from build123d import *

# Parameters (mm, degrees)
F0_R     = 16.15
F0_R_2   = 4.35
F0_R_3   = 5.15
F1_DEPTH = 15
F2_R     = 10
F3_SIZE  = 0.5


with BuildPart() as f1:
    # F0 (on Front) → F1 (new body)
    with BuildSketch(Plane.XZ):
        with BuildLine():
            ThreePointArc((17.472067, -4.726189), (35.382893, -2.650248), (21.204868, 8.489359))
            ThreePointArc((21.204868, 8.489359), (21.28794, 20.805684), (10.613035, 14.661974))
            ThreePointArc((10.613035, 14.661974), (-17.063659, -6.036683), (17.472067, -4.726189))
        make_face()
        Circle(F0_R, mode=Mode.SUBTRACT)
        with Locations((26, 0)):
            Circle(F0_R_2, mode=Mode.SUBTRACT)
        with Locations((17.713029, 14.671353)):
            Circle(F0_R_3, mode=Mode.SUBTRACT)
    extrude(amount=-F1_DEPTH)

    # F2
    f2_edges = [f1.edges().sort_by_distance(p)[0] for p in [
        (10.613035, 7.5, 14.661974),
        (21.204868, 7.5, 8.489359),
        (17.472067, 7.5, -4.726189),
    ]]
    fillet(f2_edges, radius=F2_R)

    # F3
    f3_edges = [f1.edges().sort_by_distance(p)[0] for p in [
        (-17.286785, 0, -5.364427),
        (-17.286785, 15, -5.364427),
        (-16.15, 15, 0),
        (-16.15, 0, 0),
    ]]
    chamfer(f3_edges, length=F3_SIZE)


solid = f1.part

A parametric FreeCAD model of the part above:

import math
import FreeCAD as App
import Part
import Sketcher

V = App.Vector
Q = App.Units.Quantity


def edges_at(feature, points):
    """Names of the edges that pass closest to the given points."""
    edges = feature.Shape.Edges
    near = lambda p: min(range(len(edges)), key=lambda i: edges[i].distToShape(Part.Vertex(*p))[0])
    return sorted({f"Edge{near(p) + 1}" for p in points})

doc = App.newDocument("Part")
params = doc.addObject("Spreadsheet::Sheet", "Params")
for row, (alias, value) in enumerate([
    ("sketch1_diameter", "32.3 mm"),
    ("sketch1_diameter2", "8.7 mm"),
    ("sketch1_diameter3", "10.3 mm"),
    ("sketch1_radius", "7.1 mm"),
    ("sketch1_radius2", "18.1 mm"),
    ("pad1_length", "15 mm"),
    ("fillet_radius", "10 mm"),
    ("chamfer_size", "0.5 mm"),
], start=1):
    params.set(f"A{row}", alias)
    params.set(f"B{row}", "=" + value)
    params.setAlias(f"B{row}", alias)

body = doc.addObject("PartDesign::Body", "Body")

# Sketch on XZ plane
sketch1 = body.newObject("Sketcher::SketchObject", "Sketch")
sketch1.AttachmentSupport = (doc.getObject("XZ_Plane"), [""])
sketch1.MapMode = "FlatFace"
sketch1.addGeometry(Part.ArcOfCircle(Part.Circle(V(26, 0, 0), V(0, 0, 1), 9.8), math.radians(-151), math.radians(119)), False)
sketch1.addGeometry(Part.ArcOfCircle(Part.Circle(V(17.7, 14.7, 0), V(0, 0, 1), 7.1), math.radians(-61), math.radians(180)), False)
sketch1.addGeometry(Part.ArcOfCircle(Part.Circle(V(0, 0, 0), V(0, 0, 1), 18.1), math.radians(54), math.radians(345)), False)
sketch1.addGeometry(Part.Circle(V(0, 0, 0), V(0, 0, 1), 16.1), False)
sketch1.addGeometry(Part.Circle(V(26, 0, 0), V(0, 0, 1), 4.3), False)
sketch1.addGeometry(Part.Circle(V(17.7, 14.7, 0), V(0, 0, 1), 5.2), False)
sketch1.addConstraint(Sketcher.Constraint("Tangent", 0, 2, 1, 1))
sketch1.addConstraint(Sketcher.Constraint("Coincident", 1, 2, 2, 1))
sketch1.addConstraint(Sketcher.Constraint("Coincident", 2, 2, 0, 1))
sketch1.addConstraint(Sketcher.Constraint("Coincident", 2, 3, -1, 1))
sketch1.addConstraint(Sketcher.Constraint("Coincident", 3, 3, -1, 1))
sketch1.addConstraint(Sketcher.Constraint("Coincident", 4, 3, 0, 3))
sketch1.addConstraint(Sketcher.Constraint("Coincident", 5, 3, 1, 3))
sketch1.addConstraint(Sketcher.Constraint("PointOnObject", 0, 3, -1))
sketch1.addConstraint(Sketcher.Constraint("Diameter", 3, Q("32.3 mm")))
sketch1.addConstraint(Sketcher.Constraint("Diameter", 4, Q("8.7 mm")))
sketch1.addConstraint(Sketcher.Constraint("Diameter", 5, Q("10.3 mm")))
sketch1.addConstraint(Sketcher.Constraint("Radius", 1, Q("7.1 mm")))
sketch1.addConstraint(Sketcher.Constraint("Radius", 2, Q("18.1 mm")))
sketch1.addConstraint(Sketcher.Constraint("Radius", 0, Q("9.75 mm")))
sketch1.addConstraint(Sketcher.Constraint("DistanceX", -1, 1, 0, 3, Q("26 mm")))
sketch1.addConstraint(Sketcher.Constraint("DistanceX", 2, 2, 0, 2, Q("3.732801 mm")))
sketch1.setExpression("Constraints[8]", "Params.sketch1_diameter")
sketch1.setExpression("Constraints[9]", "Params.sketch1_diameter2")
sketch1.setExpression("Constraints[10]", "Params.sketch1_diameter3")
sketch1.setExpression("Constraints[11]", "Params.sketch1_radius")
sketch1.setExpression("Constraints[12]", "Params.sketch1_radius2")
pad1 = body.newObject("PartDesign::Pad", "Pad")
pad1.Profile = sketch1
pad1.setExpression("Length", "Params.pad1_length")
pad1.Reversed = True
doc.recompute()

fillet = body.newObject("PartDesign::Fillet", "Fillet")
fillet.Base = (pad1, edges_at(pad1, [(10.613, 7.5, 14.662), (21.205, 7.5, 8.489), (17.472, 7.5, -4.726)]))
fillet.setExpression("Radius", "Params.fillet_radius")
doc.recompute()

chamfer = body.newObject("PartDesign::Chamfer", "Chamfer")
chamfer.Base = (fillet, edges_at(fillet, [
    (-17.287, 0, -5.364),
    (-17.287, 15, -5.364),
    (-16.15, 15, 0),
    (-16.15, 0, 0),
]))
chamfer.setExpression("Size", "Params.chamfer_size")

doc.recompute()
